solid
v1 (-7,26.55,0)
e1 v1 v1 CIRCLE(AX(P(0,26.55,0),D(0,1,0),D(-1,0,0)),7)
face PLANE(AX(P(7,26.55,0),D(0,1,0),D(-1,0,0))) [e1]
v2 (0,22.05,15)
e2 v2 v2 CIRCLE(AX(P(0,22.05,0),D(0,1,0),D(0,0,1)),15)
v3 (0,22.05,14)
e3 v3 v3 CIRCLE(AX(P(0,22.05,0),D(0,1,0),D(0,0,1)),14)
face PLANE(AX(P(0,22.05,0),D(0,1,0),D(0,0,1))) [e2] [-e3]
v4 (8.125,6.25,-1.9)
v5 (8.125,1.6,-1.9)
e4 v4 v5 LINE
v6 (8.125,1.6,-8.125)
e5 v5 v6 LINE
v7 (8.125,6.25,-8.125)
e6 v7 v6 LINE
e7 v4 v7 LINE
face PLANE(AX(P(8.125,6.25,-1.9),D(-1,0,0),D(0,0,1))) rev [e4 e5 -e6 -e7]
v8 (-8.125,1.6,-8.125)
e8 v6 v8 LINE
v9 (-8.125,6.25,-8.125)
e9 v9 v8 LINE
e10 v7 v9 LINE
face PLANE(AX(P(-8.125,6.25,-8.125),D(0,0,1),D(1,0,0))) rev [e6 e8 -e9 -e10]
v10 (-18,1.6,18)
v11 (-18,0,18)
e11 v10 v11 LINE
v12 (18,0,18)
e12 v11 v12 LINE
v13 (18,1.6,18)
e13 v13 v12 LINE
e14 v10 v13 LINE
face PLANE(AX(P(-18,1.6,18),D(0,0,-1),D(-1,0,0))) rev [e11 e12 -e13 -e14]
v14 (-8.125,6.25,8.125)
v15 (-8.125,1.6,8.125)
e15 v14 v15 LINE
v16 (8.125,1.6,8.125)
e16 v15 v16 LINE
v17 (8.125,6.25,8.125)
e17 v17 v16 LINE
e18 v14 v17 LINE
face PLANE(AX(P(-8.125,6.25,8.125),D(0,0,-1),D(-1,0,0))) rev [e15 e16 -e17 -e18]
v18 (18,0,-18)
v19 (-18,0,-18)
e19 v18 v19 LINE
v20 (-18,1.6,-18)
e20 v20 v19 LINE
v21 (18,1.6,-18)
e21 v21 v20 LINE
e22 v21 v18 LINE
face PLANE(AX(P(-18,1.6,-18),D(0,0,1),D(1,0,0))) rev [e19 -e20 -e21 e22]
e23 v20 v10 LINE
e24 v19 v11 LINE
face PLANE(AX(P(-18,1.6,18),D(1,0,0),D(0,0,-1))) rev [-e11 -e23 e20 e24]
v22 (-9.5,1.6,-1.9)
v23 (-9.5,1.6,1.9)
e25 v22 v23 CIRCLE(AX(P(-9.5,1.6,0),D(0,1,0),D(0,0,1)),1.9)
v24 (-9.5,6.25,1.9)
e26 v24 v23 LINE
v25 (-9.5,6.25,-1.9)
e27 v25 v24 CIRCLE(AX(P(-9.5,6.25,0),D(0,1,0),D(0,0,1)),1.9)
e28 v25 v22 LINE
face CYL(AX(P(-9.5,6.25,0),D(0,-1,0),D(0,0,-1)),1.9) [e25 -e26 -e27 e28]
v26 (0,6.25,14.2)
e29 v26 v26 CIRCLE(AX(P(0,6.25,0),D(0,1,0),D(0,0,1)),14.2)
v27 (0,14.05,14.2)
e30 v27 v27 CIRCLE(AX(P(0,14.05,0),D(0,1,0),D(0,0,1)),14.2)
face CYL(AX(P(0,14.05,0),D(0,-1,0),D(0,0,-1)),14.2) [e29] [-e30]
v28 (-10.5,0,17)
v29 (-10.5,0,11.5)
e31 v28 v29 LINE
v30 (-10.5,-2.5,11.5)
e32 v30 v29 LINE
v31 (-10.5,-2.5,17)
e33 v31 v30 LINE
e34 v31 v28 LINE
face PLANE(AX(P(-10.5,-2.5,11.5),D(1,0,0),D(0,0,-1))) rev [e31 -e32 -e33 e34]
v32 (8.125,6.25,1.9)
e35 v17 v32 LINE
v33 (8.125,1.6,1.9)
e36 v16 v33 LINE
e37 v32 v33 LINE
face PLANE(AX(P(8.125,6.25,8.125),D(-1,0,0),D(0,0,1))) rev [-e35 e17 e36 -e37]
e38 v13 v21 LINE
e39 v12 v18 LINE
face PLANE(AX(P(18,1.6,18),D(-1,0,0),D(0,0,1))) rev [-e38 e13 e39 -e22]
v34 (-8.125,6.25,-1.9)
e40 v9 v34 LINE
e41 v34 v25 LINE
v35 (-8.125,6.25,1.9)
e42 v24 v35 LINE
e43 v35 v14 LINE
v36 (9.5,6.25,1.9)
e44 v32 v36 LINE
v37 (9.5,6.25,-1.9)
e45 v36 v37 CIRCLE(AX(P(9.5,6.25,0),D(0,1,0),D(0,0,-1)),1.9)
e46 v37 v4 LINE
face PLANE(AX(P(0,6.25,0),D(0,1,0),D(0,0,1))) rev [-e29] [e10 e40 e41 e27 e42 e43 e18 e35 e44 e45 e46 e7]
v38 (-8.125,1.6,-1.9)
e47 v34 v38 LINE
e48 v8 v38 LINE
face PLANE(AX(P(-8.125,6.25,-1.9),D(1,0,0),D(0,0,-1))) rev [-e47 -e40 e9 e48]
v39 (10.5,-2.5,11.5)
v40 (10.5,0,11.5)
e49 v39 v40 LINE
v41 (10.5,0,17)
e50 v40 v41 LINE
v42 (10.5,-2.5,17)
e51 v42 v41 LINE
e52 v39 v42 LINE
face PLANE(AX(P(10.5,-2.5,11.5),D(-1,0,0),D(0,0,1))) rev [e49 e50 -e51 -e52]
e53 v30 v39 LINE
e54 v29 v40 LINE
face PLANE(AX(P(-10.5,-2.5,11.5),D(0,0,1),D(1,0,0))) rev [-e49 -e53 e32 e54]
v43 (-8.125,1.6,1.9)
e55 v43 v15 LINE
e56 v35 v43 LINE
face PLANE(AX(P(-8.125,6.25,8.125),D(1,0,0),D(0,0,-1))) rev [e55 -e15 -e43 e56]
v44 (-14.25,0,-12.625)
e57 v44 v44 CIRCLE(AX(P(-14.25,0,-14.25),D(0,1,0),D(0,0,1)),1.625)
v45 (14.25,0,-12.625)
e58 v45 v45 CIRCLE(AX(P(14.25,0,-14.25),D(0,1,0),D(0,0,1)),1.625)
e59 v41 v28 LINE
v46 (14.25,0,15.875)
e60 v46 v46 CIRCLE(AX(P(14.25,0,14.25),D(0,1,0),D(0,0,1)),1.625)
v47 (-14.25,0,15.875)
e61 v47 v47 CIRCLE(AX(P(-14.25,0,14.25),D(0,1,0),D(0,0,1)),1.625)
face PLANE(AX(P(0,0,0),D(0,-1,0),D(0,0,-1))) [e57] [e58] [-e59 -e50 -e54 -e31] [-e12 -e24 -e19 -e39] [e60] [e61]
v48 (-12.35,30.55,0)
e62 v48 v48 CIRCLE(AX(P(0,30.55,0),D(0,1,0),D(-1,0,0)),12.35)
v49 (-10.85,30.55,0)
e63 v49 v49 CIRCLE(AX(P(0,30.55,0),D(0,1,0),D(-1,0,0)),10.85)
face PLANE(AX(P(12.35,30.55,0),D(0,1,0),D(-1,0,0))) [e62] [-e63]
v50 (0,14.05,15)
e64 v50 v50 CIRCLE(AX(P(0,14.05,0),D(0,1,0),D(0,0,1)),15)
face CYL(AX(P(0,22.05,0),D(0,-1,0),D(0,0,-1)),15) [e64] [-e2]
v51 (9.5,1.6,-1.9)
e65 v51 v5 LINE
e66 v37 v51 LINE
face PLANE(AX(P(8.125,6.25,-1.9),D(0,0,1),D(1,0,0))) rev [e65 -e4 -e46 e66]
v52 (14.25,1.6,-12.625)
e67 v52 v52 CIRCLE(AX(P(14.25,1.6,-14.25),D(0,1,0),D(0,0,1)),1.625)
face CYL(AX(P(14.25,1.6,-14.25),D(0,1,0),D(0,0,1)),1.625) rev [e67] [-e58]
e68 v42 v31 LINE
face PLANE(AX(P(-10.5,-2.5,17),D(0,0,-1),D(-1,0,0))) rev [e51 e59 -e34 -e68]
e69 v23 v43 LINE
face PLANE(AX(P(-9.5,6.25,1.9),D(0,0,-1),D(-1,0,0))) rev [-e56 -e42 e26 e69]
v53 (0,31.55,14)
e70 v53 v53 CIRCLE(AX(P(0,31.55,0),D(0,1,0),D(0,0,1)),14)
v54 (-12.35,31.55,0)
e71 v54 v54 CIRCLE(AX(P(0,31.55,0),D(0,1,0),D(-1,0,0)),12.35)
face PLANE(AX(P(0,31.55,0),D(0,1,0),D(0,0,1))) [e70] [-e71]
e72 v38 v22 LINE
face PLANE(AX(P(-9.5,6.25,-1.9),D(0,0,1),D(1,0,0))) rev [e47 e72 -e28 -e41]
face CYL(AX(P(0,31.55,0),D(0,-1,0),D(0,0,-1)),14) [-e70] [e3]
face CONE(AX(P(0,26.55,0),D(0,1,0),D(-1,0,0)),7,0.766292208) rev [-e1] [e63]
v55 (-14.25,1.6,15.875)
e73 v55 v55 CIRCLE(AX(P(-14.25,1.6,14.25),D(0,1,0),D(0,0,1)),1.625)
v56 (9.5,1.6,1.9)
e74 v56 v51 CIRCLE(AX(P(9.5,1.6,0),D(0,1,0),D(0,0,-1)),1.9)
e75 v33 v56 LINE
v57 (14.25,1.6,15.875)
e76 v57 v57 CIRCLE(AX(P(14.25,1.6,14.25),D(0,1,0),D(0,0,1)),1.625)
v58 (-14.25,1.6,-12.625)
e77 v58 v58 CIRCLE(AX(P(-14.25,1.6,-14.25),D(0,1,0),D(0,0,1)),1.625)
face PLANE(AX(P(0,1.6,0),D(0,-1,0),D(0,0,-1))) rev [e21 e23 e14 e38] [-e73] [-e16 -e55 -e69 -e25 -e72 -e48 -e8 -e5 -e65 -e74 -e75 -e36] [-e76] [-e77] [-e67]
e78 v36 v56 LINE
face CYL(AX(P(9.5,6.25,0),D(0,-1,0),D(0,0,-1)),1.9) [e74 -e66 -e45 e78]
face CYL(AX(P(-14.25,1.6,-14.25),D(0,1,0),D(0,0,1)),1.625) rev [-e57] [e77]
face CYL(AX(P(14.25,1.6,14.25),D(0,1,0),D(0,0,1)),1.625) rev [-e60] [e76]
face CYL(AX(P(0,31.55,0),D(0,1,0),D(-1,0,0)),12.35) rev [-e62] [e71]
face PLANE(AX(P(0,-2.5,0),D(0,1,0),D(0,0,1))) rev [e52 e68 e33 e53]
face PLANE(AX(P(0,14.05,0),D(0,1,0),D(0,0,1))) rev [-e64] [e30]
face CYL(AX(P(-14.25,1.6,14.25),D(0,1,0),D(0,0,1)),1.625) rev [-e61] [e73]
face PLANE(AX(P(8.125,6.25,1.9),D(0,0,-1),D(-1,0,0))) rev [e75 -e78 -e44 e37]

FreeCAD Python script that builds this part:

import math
import FreeCAD as App
import Part
import Sketcher
from FreeCAD import Vector
Q = App.Units.Quantity


def add_polygon(sketch, points):
    """Adds a closed chain of lines whose ends are joined by coincident constraints."""
    first, n = sketch.GeometryCount, len(points)
    for a, b in zip(points, points[1:] + points[:1]):
        sketch.addGeometry(Part.LineSegment(App.Vector(*a, 0), App.Vector(*b, 0)), False)
    for i in range(n):
        sketch.addConstraint(Sketcher.Constraint("Coincident", first + i, 2, first + (i + 1) % n, 1))

doc = App.newDocument("Part")
body = doc.addObject("PartDesign::Body", "Body")

sketch1 = doc.addObject("Sketcher::SketchObject", "Sketch")
body.addObject(sketch1)
sketch1.AttachmentSupport = (doc.XZ_Plane, [""])
sketch1.MapMode = "FlatFace"
add_polygon(sketch1, [(-18, -18), (-18, 18), (18, 18), (18, -18)])
sketch1.addConstraint([
    Sketcher.Constraint("Vertical", 0),
    Sketcher.Constraint("Horizontal", 1),
    Sketcher.Constraint("Vertical", 2),
    Sketcher.Constraint("Horizontal", 3),
    Sketcher.Constraint("Symmetric", 0, 2, 2, 2, -1, 1),
    Sketcher.Constraint("Equal", 3, 0),
    Sketcher.Constraint("DistanceX", 1, 1, 1, 2, Q("36 mm")),
])
pad1 = doc.addObject("PartDesign::Pad", "Pad")
body.addObject(pad1)
pad1.Profile = sketch1
pad1.Length = 1.6
pad1.Reversed = True

sketch2 = doc.addObject("Sketcher::SketchObject", "Sketch001")
body.addObject(sketch2)
sketch2.AttachmentSupport = (doc.XZ_Plane, [""])
sketch2.MapMode = "FlatFace"
sketch2.AttachmentOffset = App.Placement(Vector(0, 0, -1.6), App.Rotation())
sketch2.addGeometry([
    Part.Circle(Vector(-14.2, -14.2, 0), Vector(0, 0, 1), 1.6),
    Part.Circle(Vector(14.2, -14.2, 0), Vector(0, 0, 1), 1.6),
    Part.Circle(Vector(14.2, 14.2, 0), Vector(0, 0, 1), 1.6),
    Part.Circle(Vector(-14.2, 14.2, 0), Vector(0, 0, 1), 1.6),
], False)
sketch2.addConstraint([
    Sketcher.Constraint("Equal", 0, 1),
    Sketcher.Constraint("Equal", 1, 2),
    Sketcher.Constraint("Equal", 2, 3),
    Sketcher.Constraint("Symmetric", 0, 3, 2, 3, -1, 1),
    Sketcher.Constraint("Symmetric", 1, 3, 3, 3, -1, 1),
    Sketcher.Constraint("Symmetric", 0, 3, 1, 3, -2),
    Sketcher.Constraint("Diameter", 0, Q("3.25 mm")),
    Sketcher.Constraint("DistanceX", 0, 3, 1, 3, Q("28.5 mm")),
    Sketcher.Constraint("DistanceY", 1, 3, 2, 3, Q("28.5 mm")),
])
doc.recompute()
hole = doc.addObject("PartDesign::Hole", "Hole")
body.addObject(hole)
hole.Profile = sketch2
hole.ThreadType = "None"
hole.Diameter = 3.25
hole.DepthType = "ThroughAll"
hole.Reversed = True

sketch3 = doc.addObject("Sketcher::SketchObject", "Sketch002")
body.addObject(sketch3)
sketch3.AttachmentSupport = (doc.XZ_Plane, [""])
sketch3.MapMode = "FlatFace"
sketch3.AttachmentOffset = App.Placement(Vector(0, 0, -1.6), App.Rotation())
sketch3.addGeometry([
    Part.LineSegment(Vector(-8.1, 8.1, 0), Vector(8.1, 8.1, 0)),
    Part.LineSegment(Vector(8.1, 8.1, 0), Vector(8.1, 1.9, 0)),
    Part.LineSegment(Vector(8.1, 1.9, 0), Vector(9.5, 1.9, 0)),
    Part.ArcOfCircle(Part.Circle(Vector(9.5, 0, 0), Vector(0, 0, 1), 1.9), math.radians(-90), math.radians(90)),
    Part.LineSegment(Vector(9.5, -1.9, 0), Vector(8.1, -1.9, 0)),
    Part.LineSegment(Vector(8.1, -1.9, 0), Vector(8.1, -8.1, 0)),
    Part.LineSegment(Vector(8.1, -8.1, 0), Vector(-8.1, -8.1, 0)),
    Part.LineSegment(Vector(-8.1, -8.1, 0), Vector(-8.1, -1.9, 0)),
    Part.LineSegment(Vector(-8.1, -1.9, 0), Vector(-9.5, -1.9, 0)),
    Part.ArcOfCircle(Part.Circle(Vector(-9.5, 0, 0), Vector(0, 0, 1), 1.9), math.radians(90), math.radians(270)),
    Part.LineSegment(Vector(-9.5, 1.9, 0), Vector(-8.1, 1.9, 0)),
    Part.LineSegment(Vector(-8.1, 1.9, 0), Vector(-8.1, 8.1, 0)),
], False)
sketch3.addConstraint([
    Sketcher.Constraint("Coincident", 0, 2, 1, 1),
    Sketcher.Constraint("Coincident", 1, 2, 2, 1),
    Sketcher.Constraint("Tangent", 2, 2, 3, 2),
    Sketcher.Constraint("Tangent", 3, 1, 4, 1),
    Sketcher.Constraint("Coincident", 4, 2, 5, 1),
    Sketcher.Constraint("Coincident", 5, 2, 6, 1),
    Sketcher.Constraint("Coincident", 6, 2, 7, 1),
    Sketcher.Constraint("Coincident", 7, 2, 8, 1),
    Sketcher.Constraint("Tangent", 8, 2, 9, 2),
    Sketcher.Constraint("Tangent", 9, 1, 10, 1),
    Sketcher.Constraint("Coincident", 10, 2, 11, 1),
    Sketcher.Constraint("Coincident", 11, 2, 0, 1),
    Sketcher.Constraint("Horizontal", 0),
    Sketcher.Constraint("Vertical", 1),
    Sketcher.Constraint("Horizontal", 2),
    Sketcher.Constraint("Horizontal", 4),
    Sketcher.Constraint("Vertical", 5),
    Sketcher.Constraint("Horizontal", 6),
    Sketcher.Constraint("Vertical", 7),
    Sketcher.Constraint("Horizontal", 8),
    Sketcher.Constraint("Horizontal", 10),
    Sketcher.Constraint("Vertical", 11),
    Sketcher.Constraint("Equal", 3, 9),
    Sketcher.Constraint("Symmetric", 3, 3, 9, 3, -1, 1),
    Sketcher.Constraint("Symmetric", 0, 2, 6, 2, -1, 1),
    Sketcher.Constraint("Symmetric", 4, 2, 7, 2, -2),
    Sketcher.Constraint("Vertical", 7, 2, 10, 2),
    Sketcher.Constraint("Radius", 3, Q("1.9 mm")),
    Sketcher.Constraint("DistanceX", 9, 3, 3, 3, Q("19 mm")),
    Sketcher.Constraint("DistanceX", 0, 1, 0, 2, Q("16.25 mm")),
    Sketcher.Constraint("DistanceY", 1, 2, 1, 1, Q("6.225 mm")),
])
pad2 = doc.addObject("PartDesign::Pad", "Pad001")
body.addObject(pad2)
pad2.Profile = sketch3
pad2.Length = 4.65
pad2.Reversed = True

sketch4 = doc.addObject("Sketcher::SketchObject", "Sketch003")
body.addObject(sketch4)
sketch4.AttachmentSupport = (doc.XZ_Plane, [""])
sketch4.MapMode = "FlatFace"
sketch4.AttachmentOffset = App.Placement(Vector(0, 0, -6.25), App.Rotation())
sketch4.addGeometry(Part.Circle(Vector(0, 0, 0), Vector(0, 0, 1), 14), False)
sketch4.addConstraint([
    Sketcher.Constraint("Coincident", 0, 3, -1, 1),
    Sketcher.Constraint("Diameter", 0, Q("28.4 mm")),
])
pad3 = doc.addObject("PartDesign::Pad", "Pad002")
body.addObject(pad3)
pad3.Profile = sketch4
pad3.Length = 7.8
pad3.Reversed = True

sketch5 = doc.addObject("Sketcher::SketchObject", "Sketch004")
body.addObject(sketch5)
sketch5.AttachmentSupport = (doc.XZ_Plane, [""])
sketch5.MapMode = "FlatFace"
sketch5.AttachmentOffset = App.Placement(Vector(0, 0, -14.05), App.Rotation())
sketch5.addGeometry(Part.Circle(Vector(0, 0, 0), Vector(0, 0, 1), 15), False)
sketch5.addConstraint([
    Sketcher.Constraint("Coincident", 0, 3, -1, 1),
    Sketcher.Constraint("Diameter", 0, Q("30 mm")),
])
pad4 = doc.addObject("PartDesign::Pad", "Pad003")
body.addObject(pad4)
pad4.Profile = sketch5
pad4.Length = 8
pad4.Reversed = True

sketch6 = doc.addObject("Sketcher::SketchObject", "Sketch005")
body.addObject(sketch6)
sketch6.AttachmentSupport = (doc.XZ_Plane, [""])
sketch6.MapMode = "FlatFace"
sketch6.AttachmentOffset = App.Placement(Vector(0, 0, -22.05), App.Rotation())
sketch6.addGeometry(Part.Circle(Vector(0, 0, 0), Vector(0, 0, 1), 14), False)
sketch6.addConstraint([
    Sketcher.Constraint("Coincident", 0, 3, -1, 1),
    Sketcher.Constraint("Diameter", 0, Q("28 mm")),
])
pad5 = doc.addObject("PartDesign::Pad", "Pad004")
body.addObject(pad5)
pad5.Profile = sketch6
pad5.Length = 9.5
pad5.Reversed = True

sketch7 = doc.addObject("Sketcher::SketchObject", "Sketch006")
body.addObject(sketch7)
sketch7.AttachmentSupport = (doc.XZ_Plane, [""])
sketch7.MapMode = "FlatFace"
add_polygon(sketch7, [(-10, 17), (-10, 12), (10, 12), (10, 17)])
sketch7.addConstraint([
    Sketcher.Constraint("Vertical", 0),
    Sketcher.Constraint("Horizontal", 1),
    Sketcher.Constraint("Vertical", 2),
    Sketcher.Constraint("Horizontal", 3),
    Sketcher.Constraint("DistanceX", 1, 1, 1, 2, Q("21 mm")),
    Sketcher.Constraint("DistanceY", 0, 2, 0, 1, Q("5.5 mm")),
    Sketcher.Constraint("DistanceY", -1, 1, 2, 2, Q("17 mm")),
    Sketcher.Constraint("DistanceX", 0, 2, -1, 1, Q("10.5 mm")),
])
pad6 = doc.addObject("PartDesign::Pad", "Pad005")
body.addObject(pad6)
pad6.Profile = sketch7
pad6.Length = 2.5

sketch8 = doc.addObject("Sketcher::SketchObject", "Sketch007")
body.addObject(sketch8)
sketch8.AttachmentSupport = (doc.XY_Plane, [""])
sketch8.MapMode = "FlatFace"
add_polygon(sketch8, [(0, 31.6), (0, 26.6), (7, 26.6), (10.8, 30.6), (12.3, 30.6), (12.3, 31.6)])
sketch8.addConstraint([
    Sketcher.Constraint("Vertical", 0),
    Sketcher.Constraint("Horizontal", 1),
    Sketcher.Constraint("Horizontal", 3),
    Sketcher.Constraint("Vertical", 4),
    Sketcher.Constraint("Horizontal", 5),
    Sketcher.Constraint("PointOnObject", 0, 2, -2),
    Sketcher.Constraint("DistanceX", 1, 1, 1, 2, Q("7 mm")),
    Sketcher.Constraint("DistanceY", 0, 2, 0, 1, Q("5 mm")),
    Sketcher.Constraint("DistanceY", 4, 1, 4, 2, Q("1 mm")),
    Sketcher.Constraint("DistanceX", 3, 1, 3, 2, Q("1.5 mm")),
    Sketcher.Constraint("DistanceX", 5, 2, 5, 1, Q("12.35 mm")),
    Sketcher.Constraint("DistanceY", -1, 1, 0, 2, Q("26.55 mm")),
])
groove = doc.addObject("PartDesign::Groove", "Groove")
body.addObject(groove)
groove.Profile = sketch8
groove.ReferenceAxis = (sketch8, ["V_Axis"])
groove.Angle = 360

doc.recompute()
